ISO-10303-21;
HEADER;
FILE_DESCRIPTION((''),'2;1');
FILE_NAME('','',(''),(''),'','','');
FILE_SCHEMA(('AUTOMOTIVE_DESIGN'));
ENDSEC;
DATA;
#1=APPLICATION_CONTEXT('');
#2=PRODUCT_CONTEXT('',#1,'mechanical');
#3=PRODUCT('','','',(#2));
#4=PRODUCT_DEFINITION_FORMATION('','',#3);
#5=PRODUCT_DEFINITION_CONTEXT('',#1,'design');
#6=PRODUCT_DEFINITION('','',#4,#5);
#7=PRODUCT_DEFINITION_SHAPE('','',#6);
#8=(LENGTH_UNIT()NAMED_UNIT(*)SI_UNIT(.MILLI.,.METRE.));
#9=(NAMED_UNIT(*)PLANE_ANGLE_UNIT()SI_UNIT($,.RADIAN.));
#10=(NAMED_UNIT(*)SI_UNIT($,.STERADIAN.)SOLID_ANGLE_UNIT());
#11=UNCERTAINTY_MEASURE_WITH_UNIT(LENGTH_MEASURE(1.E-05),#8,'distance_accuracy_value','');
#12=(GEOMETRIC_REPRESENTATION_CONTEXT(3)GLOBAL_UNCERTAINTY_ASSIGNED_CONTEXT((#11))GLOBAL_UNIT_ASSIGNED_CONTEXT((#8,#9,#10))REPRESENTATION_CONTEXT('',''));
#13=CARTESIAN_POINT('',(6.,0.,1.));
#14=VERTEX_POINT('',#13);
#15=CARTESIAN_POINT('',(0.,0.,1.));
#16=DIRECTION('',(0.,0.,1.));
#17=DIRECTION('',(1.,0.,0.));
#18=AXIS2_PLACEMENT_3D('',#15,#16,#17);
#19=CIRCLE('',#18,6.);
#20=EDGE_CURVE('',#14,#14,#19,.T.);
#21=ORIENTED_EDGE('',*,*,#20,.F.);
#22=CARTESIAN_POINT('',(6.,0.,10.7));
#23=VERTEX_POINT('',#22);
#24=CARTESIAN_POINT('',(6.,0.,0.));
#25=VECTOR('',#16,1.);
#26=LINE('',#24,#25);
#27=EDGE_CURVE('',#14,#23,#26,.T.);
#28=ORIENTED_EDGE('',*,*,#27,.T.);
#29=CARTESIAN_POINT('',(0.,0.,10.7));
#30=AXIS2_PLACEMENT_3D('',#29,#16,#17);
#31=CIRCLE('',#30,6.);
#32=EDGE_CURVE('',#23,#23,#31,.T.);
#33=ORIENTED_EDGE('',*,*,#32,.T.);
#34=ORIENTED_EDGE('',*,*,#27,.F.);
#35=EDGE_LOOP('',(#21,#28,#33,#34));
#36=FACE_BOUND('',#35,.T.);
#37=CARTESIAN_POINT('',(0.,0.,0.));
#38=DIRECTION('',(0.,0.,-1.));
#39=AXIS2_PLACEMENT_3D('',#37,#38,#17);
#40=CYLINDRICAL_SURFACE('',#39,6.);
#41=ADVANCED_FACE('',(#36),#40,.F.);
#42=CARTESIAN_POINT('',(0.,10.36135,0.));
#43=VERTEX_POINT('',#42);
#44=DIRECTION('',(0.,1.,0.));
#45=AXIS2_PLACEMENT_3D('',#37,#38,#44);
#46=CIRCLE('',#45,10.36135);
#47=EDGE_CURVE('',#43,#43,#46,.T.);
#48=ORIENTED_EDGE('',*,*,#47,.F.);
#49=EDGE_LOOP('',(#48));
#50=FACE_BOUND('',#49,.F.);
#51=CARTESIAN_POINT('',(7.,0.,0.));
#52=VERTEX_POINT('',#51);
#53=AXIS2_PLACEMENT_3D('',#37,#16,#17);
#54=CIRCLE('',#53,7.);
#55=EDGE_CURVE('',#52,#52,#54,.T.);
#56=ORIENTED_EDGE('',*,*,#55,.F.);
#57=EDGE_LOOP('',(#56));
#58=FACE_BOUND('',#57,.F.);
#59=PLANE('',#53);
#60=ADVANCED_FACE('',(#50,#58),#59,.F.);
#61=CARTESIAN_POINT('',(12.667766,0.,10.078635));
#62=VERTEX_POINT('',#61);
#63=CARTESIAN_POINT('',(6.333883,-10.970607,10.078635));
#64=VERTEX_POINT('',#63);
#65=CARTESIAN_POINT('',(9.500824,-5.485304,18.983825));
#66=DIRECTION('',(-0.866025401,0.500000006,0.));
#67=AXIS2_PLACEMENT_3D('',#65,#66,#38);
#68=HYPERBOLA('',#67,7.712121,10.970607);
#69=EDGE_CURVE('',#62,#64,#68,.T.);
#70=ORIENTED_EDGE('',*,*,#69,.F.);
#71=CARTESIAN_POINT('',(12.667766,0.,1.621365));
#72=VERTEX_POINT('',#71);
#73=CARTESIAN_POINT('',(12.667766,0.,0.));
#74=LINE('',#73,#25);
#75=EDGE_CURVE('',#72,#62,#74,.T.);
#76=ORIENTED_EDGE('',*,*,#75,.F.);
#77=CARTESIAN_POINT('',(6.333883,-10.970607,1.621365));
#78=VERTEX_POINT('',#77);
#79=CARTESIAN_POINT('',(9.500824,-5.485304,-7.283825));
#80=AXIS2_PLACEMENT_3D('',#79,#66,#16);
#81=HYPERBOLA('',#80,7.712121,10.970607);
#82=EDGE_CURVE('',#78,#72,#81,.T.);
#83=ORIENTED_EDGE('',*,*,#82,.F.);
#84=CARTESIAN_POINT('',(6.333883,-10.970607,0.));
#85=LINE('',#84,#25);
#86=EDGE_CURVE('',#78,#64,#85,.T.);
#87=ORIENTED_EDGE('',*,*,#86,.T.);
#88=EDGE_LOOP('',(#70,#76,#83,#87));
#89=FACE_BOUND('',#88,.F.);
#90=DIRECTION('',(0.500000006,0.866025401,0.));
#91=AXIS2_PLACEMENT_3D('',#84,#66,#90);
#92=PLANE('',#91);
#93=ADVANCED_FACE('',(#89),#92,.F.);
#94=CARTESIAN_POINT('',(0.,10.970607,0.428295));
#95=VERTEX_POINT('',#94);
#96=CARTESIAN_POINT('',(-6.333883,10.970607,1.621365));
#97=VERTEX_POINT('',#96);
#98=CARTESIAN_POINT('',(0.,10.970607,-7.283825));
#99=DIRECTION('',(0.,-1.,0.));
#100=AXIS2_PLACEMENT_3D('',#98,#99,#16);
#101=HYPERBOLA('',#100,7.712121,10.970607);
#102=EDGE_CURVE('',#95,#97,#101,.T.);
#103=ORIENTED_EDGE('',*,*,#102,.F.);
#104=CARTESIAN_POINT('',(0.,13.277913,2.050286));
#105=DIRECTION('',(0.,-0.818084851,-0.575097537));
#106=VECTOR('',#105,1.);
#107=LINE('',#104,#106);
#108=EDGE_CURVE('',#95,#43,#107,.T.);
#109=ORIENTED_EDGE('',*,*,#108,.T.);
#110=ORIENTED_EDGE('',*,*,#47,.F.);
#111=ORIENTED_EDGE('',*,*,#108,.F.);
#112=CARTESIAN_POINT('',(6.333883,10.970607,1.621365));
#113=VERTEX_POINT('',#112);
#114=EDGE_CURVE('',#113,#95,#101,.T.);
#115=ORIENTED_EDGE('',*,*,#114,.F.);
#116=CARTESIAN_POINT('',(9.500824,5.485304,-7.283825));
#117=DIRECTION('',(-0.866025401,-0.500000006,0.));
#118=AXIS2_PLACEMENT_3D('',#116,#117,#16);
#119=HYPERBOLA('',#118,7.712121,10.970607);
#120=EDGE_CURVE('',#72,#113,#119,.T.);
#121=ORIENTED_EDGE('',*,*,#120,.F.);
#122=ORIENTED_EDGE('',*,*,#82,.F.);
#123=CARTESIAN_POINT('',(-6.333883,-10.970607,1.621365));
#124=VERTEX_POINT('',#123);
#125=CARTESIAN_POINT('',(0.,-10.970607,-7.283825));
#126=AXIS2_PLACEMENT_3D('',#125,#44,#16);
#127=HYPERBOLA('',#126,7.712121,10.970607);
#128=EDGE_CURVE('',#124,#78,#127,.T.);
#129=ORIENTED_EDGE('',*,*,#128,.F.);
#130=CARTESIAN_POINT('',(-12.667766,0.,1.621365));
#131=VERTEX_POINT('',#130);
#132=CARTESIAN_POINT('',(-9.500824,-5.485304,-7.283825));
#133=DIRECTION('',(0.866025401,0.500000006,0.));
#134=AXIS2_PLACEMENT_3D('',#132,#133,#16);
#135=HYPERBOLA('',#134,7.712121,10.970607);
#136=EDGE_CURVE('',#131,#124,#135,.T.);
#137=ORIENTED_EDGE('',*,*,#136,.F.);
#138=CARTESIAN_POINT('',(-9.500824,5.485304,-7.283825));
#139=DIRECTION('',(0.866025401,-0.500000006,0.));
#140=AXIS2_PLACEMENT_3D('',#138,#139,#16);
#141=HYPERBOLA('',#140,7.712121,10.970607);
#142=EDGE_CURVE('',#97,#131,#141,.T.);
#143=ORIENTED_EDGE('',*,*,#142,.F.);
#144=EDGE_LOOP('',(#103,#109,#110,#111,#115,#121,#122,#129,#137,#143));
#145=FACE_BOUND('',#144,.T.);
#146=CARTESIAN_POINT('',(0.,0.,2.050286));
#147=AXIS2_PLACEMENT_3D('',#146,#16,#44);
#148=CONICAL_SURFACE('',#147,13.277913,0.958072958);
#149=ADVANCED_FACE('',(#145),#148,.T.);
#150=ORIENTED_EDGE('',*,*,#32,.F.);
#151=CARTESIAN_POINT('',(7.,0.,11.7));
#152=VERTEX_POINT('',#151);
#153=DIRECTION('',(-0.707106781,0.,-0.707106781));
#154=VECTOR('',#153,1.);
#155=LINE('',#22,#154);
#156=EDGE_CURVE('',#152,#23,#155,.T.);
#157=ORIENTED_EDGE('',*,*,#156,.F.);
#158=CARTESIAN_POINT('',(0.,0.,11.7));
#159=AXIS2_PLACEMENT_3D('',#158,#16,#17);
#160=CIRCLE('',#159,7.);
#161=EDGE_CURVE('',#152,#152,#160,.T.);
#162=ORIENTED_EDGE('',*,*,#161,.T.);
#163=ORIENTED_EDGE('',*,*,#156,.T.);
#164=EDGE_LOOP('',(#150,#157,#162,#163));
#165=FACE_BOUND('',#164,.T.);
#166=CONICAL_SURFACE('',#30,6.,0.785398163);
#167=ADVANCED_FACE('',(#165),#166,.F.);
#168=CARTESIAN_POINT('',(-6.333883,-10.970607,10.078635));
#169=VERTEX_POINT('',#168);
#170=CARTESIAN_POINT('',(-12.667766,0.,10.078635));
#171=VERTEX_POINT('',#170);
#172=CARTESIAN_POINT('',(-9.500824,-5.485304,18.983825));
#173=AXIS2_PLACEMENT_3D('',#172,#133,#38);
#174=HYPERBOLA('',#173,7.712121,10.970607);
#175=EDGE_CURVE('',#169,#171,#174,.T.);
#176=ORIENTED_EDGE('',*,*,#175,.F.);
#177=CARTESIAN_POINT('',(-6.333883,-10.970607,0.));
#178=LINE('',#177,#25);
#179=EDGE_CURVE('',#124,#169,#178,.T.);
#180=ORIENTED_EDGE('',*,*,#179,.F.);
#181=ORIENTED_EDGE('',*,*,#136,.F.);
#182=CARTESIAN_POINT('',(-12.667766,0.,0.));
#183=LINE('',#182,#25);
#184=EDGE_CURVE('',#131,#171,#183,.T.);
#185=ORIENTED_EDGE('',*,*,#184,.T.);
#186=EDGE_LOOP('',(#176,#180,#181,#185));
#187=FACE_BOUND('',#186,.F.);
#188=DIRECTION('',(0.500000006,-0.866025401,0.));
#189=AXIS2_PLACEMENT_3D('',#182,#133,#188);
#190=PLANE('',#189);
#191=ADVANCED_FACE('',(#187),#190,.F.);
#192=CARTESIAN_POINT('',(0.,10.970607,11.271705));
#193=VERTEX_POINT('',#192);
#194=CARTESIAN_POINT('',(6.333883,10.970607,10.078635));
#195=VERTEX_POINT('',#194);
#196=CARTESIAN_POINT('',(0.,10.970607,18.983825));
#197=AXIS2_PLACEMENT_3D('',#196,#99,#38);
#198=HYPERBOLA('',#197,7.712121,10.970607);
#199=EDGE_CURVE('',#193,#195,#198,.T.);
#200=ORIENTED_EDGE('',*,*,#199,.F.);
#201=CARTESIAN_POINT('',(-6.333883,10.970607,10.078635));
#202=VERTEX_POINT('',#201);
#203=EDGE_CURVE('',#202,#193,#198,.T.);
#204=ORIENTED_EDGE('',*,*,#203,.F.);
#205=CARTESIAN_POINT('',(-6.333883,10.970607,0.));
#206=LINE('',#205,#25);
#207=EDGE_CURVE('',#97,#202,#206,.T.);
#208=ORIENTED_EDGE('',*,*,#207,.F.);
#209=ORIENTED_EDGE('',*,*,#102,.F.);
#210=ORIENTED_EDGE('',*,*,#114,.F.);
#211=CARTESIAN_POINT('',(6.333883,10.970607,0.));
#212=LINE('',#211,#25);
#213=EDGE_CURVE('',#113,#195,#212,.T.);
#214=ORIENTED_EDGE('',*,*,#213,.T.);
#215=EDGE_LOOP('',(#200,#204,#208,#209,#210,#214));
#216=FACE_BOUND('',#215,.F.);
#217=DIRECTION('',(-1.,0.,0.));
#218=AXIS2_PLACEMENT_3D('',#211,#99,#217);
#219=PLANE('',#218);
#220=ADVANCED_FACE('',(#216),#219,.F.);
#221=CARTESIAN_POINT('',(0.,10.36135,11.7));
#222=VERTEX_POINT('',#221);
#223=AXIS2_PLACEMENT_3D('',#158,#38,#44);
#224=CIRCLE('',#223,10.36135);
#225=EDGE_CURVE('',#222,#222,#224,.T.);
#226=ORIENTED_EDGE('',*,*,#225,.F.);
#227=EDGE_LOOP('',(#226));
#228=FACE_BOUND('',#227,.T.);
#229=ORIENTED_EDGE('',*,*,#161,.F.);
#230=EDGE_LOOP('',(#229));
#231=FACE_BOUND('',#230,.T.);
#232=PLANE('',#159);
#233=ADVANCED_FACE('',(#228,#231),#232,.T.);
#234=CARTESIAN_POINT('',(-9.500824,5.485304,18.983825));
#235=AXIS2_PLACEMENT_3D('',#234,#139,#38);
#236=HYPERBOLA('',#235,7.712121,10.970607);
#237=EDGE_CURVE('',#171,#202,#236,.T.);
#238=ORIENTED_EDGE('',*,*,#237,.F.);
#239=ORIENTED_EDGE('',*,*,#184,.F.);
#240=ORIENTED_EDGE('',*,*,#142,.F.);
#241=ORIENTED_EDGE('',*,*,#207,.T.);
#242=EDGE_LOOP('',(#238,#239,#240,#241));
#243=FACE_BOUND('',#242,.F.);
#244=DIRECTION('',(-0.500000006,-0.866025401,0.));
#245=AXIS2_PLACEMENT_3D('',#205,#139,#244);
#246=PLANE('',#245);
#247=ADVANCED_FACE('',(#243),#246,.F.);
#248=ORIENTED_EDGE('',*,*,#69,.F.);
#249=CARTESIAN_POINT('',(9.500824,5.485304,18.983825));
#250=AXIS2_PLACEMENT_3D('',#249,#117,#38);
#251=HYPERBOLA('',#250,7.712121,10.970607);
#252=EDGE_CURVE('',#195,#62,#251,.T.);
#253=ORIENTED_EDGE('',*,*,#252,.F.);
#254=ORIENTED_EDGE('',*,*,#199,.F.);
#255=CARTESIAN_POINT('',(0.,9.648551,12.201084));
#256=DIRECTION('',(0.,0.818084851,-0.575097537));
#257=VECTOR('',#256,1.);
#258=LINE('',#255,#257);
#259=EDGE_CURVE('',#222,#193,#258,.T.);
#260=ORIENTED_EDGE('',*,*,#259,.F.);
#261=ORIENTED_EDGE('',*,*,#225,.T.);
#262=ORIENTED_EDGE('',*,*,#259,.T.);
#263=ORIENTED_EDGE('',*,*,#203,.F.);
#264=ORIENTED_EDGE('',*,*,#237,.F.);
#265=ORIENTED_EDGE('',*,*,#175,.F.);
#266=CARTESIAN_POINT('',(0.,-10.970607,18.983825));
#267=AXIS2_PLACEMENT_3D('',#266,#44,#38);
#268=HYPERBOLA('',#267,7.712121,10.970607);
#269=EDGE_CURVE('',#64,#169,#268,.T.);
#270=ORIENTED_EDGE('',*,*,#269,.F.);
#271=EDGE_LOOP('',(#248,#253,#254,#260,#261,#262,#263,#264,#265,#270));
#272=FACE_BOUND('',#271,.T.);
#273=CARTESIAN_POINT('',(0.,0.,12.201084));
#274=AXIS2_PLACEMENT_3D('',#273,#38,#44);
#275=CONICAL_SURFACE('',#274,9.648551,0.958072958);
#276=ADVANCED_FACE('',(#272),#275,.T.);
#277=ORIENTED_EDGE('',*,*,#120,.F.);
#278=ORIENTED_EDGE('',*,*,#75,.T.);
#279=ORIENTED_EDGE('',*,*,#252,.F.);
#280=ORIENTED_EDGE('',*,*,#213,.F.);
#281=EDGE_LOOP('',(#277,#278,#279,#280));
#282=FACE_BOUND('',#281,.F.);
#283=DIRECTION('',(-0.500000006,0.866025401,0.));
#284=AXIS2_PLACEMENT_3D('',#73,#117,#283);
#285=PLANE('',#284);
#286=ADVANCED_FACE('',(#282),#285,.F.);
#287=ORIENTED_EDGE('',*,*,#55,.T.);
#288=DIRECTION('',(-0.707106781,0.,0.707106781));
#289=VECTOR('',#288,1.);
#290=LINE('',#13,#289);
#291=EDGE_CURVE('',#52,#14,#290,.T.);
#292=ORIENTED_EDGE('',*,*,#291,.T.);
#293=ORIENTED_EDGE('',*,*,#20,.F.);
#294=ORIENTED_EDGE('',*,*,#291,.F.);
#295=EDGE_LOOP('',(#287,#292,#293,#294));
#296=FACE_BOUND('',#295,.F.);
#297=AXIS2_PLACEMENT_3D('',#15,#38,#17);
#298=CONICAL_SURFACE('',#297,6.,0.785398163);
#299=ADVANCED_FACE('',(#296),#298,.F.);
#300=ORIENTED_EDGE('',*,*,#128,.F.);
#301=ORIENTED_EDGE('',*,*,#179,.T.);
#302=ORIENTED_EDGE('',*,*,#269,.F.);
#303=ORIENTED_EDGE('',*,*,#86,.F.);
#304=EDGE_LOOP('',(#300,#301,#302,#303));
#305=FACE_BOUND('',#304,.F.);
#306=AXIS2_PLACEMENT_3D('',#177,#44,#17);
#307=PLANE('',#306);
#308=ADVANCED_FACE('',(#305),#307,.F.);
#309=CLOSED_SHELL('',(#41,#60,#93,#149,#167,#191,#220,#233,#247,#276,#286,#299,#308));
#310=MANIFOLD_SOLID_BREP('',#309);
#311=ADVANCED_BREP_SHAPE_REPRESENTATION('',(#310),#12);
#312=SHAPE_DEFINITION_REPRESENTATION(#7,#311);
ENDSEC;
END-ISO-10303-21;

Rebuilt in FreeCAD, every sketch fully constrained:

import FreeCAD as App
import Part
import Sketcher
Q = App.Units.Quantity


def edges_at(feature, points):
    """Names of the edges that pass closest to the given points."""
    edges = feature.Shape.Edges
    near = lambda p: min(range(len(edges)), key=lambda i: edges[i].distToShape(Part.Vertex(*p))[0])
    return sorted({f"Edge{near(p) + 1}" for p in points})


def add_polygon(sketch, points):
    """Adds a closed chain of lines whose ends are joined by coincident constraints."""
    first, n = sketch.GeometryCount, len(points)
    for a, b in zip(points, points[1:] + points[:1]):
        sketch.addGeometry(Part.LineSegment(App.Vector(*a, 0), App.Vector(*b, 0)), False)
    for i in range(n):
        sketch.addConstraint(Sketcher.Constraint("Coincident", first + i, 2, first + (i + 1) % n, 1))

doc = App.newDocument("Part")
body = doc.addObject("PartDesign::Body", "Body")

# Sketch on XY plane
sketch1 = doc.addObject("Sketcher::SketchObject", "Sketch")
body.addObject(sketch1)
sketch1.AttachmentSupport = (doc.XY_Plane, [""])
sketch1.MapMode = "FlatFace"
add_polygon(sketch1, [(6.333883, 10.970607), (-6.333883, 10.970607), (-12.667766, 0), (-6.333883, -10.970607), (6.333883, -10.970607), (12.667766, 0)])  # lines 0-5
sketch1.addGeometry(Part.Circle(App.Vector(0, 0, 0), App.Vector(0, 0, 1), 6), False)  # 6
sketch1.addConstraint([
    Sketcher.Constraint("Horizontal", 0),
    Sketcher.Constraint("Horizontal", 3),
    Sketcher.Constraint("Coincident", 6, 3, -1, 1),
    Sketcher.Constraint("Symmetric", 0, 2, 3, 2, -1, 1),
    Sketcher.Constraint("Symmetric", 1, 2, 4, 2, -1, 1),
    Sketcher.Constraint("PointOnObject", 1, 2, -1),
    Sketcher.Constraint("Parallel", 2, 5),
    Sketcher.Constraint("Vertical", 0, 2, 2, 2),
    Sketcher.Constraint("Diameter", 6, 12.0),
    Sketcher.Constraint("Angle", 1, Q("-120 deg")),
    Sketcher.Constraint("DistanceX", 0, 2, 0, 1, 12.667766),
    Sketcher.Constraint("DistanceX", 1, 2, 3, 2, 19.001649),
])
pad1 = doc.addObject("PartDesign::Pad", "Pad")
body.addObject(pad1)
pad1.Profile = sketch1
pad1.Length = 11.7

# Sketch on YZ plane
sketch2 = doc.addObject("Sketcher::SketchObject", "Sketch001")
body.addObject(sketch2)
sketch2.AttachmentSupport = (doc.YZ_Plane, [""])
sketch2.MapMode = "FlatFace"
add_polygon(sketch2, [(13.277913, 12.61499), (9.648551, 12.201084), (13.277913, 9.649714)])  # lines 0-2
add_polygon(sketch2, [(13.277913, 2.050286), (9.648551, -0.501084), (13.277913, -0.91499)])  # lines 3-5
sketch2.addConstraint([
    Sketcher.Constraint("Vertical", 2),
    Sketcher.Constraint("Vertical", 5),
    Sketcher.Constraint("Vertical", 0, 2, 3, 2),
    Sketcher.Constraint("Vertical", 2, 2, 4, 2),
    Sketcher.Constraint("Equal", 2, 5),
    Sketcher.Constraint("Equal", 1, 3),
    Sketcher.Constraint("DistanceY", 2, 1, 2, 2, 2.965276),
    Sketcher.Constraint("DistanceX", -1, 1, 0, 2, 9.648551),
    Sketcher.Constraint("DistanceY", -1, 1, 2, 2, 12.61499),
    Sketcher.Constraint("DistanceY", 4, 2, -1, 1, 0.91499),
    Sketcher.Constraint("DistanceY", 1, 2, 0, 2, 2.55137),
    Sketcher.Constraint("Distance", 0, 3.652887),
])
groove = doc.addObject("PartDesign::Groove", "Groove")
body.addObject(groove)
groove.Profile = sketch2
groove.ReferenceAxis = (sketch2, ["V_Axis"])
groove.Angle = 360
doc.recompute()

chamfer = doc.addObject("PartDesign::Chamfer", "Chamfer")
body.addObject(chamfer)
chamfer.Base = (groove, edges_at(groove, [(-6, 0, 11.7), (-6, 0, 0)]))
chamfer.Size = 1

doc.recompute()
